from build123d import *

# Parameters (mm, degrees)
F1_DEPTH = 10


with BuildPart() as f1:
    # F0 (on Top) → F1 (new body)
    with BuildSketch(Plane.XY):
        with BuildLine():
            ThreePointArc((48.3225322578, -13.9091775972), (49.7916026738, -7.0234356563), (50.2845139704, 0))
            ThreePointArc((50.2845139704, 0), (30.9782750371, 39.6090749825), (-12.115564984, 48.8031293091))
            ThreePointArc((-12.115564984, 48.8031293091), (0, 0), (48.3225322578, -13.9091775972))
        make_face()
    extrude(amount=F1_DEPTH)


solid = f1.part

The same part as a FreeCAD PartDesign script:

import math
import FreeCAD as App
import Part
import Sketcher
from FreeCAD import Vector
Q = App.Units.Quantity

doc = App.newDocument("Part")
params = doc.addObject("Spreadsheet::Sheet", "Params")
for row, (alias, value) in enumerate([
    ("pad1_length", "10 mm"),
], start=1):
    params.set(f"A{row}", alias)
    params.set(f"B{row}", "=" + value)
    params.setAlias(f"B{row}", alias)

body = doc.addObject("PartDesign::Body", "Body")

sketch1 = body.newObject("Sketcher::SketchObject", "Sketch")
sketch1.AttachmentSupport = (doc.getObject("XY_Plane"), [""])
sketch1.MapMode = "FlatFace"
sketch1.addGeometry([
    Part.ArcOfCircle(Part.Circle(Vector(0, 0, 0), Vector(0, 0, 1), 50), math.radians(-16.06), math.radians(0)),
    Part.ArcOfCircle(Part.Circle(Vector(0, 0, 0), Vector(0, 0, 1), 50), math.radians(0), math.radians(104)),
    Part.ArcOfCircle(Part.Circle(Vector(36, 35, 0), Vector(0, 0, 1), 50), math.radians(164), math.radians(284)),
], False)
sketch1.addConstraint([
    Sketcher.Constraint("Tangent", 0, 2, 1, 1),
    Sketcher.Constraint("Coincident", 1, 2, 2, 1),
    Sketcher.Constraint("Coincident", 2, 2, 0, 1),
    Sketcher.Constraint("Coincident", 0, 3, -1, 1),
    Sketcher.Constraint("Equal", 0, 1),
    Sketcher.Constraint("Equal", 1, 2),
    Sketcher.Constraint("PointOnObject", 0, 2, -1),
    Sketcher.Constraint("Radius", 0, Q("50.284514 mm")),
    Sketcher.Constraint("DistanceY", -1, 1, 2, 3, Q("34.893952 mm")),
    Sketcher.Constraint("DistanceY", -1, 1, 1, 2, Q("48.803129 mm")),
])
pad1 = body.newObject("PartDesign::Pad", "Pad")
pad1.Profile = sketch1
pad1.setExpression("Length", "Params.pad1_length")

doc.recompute()
